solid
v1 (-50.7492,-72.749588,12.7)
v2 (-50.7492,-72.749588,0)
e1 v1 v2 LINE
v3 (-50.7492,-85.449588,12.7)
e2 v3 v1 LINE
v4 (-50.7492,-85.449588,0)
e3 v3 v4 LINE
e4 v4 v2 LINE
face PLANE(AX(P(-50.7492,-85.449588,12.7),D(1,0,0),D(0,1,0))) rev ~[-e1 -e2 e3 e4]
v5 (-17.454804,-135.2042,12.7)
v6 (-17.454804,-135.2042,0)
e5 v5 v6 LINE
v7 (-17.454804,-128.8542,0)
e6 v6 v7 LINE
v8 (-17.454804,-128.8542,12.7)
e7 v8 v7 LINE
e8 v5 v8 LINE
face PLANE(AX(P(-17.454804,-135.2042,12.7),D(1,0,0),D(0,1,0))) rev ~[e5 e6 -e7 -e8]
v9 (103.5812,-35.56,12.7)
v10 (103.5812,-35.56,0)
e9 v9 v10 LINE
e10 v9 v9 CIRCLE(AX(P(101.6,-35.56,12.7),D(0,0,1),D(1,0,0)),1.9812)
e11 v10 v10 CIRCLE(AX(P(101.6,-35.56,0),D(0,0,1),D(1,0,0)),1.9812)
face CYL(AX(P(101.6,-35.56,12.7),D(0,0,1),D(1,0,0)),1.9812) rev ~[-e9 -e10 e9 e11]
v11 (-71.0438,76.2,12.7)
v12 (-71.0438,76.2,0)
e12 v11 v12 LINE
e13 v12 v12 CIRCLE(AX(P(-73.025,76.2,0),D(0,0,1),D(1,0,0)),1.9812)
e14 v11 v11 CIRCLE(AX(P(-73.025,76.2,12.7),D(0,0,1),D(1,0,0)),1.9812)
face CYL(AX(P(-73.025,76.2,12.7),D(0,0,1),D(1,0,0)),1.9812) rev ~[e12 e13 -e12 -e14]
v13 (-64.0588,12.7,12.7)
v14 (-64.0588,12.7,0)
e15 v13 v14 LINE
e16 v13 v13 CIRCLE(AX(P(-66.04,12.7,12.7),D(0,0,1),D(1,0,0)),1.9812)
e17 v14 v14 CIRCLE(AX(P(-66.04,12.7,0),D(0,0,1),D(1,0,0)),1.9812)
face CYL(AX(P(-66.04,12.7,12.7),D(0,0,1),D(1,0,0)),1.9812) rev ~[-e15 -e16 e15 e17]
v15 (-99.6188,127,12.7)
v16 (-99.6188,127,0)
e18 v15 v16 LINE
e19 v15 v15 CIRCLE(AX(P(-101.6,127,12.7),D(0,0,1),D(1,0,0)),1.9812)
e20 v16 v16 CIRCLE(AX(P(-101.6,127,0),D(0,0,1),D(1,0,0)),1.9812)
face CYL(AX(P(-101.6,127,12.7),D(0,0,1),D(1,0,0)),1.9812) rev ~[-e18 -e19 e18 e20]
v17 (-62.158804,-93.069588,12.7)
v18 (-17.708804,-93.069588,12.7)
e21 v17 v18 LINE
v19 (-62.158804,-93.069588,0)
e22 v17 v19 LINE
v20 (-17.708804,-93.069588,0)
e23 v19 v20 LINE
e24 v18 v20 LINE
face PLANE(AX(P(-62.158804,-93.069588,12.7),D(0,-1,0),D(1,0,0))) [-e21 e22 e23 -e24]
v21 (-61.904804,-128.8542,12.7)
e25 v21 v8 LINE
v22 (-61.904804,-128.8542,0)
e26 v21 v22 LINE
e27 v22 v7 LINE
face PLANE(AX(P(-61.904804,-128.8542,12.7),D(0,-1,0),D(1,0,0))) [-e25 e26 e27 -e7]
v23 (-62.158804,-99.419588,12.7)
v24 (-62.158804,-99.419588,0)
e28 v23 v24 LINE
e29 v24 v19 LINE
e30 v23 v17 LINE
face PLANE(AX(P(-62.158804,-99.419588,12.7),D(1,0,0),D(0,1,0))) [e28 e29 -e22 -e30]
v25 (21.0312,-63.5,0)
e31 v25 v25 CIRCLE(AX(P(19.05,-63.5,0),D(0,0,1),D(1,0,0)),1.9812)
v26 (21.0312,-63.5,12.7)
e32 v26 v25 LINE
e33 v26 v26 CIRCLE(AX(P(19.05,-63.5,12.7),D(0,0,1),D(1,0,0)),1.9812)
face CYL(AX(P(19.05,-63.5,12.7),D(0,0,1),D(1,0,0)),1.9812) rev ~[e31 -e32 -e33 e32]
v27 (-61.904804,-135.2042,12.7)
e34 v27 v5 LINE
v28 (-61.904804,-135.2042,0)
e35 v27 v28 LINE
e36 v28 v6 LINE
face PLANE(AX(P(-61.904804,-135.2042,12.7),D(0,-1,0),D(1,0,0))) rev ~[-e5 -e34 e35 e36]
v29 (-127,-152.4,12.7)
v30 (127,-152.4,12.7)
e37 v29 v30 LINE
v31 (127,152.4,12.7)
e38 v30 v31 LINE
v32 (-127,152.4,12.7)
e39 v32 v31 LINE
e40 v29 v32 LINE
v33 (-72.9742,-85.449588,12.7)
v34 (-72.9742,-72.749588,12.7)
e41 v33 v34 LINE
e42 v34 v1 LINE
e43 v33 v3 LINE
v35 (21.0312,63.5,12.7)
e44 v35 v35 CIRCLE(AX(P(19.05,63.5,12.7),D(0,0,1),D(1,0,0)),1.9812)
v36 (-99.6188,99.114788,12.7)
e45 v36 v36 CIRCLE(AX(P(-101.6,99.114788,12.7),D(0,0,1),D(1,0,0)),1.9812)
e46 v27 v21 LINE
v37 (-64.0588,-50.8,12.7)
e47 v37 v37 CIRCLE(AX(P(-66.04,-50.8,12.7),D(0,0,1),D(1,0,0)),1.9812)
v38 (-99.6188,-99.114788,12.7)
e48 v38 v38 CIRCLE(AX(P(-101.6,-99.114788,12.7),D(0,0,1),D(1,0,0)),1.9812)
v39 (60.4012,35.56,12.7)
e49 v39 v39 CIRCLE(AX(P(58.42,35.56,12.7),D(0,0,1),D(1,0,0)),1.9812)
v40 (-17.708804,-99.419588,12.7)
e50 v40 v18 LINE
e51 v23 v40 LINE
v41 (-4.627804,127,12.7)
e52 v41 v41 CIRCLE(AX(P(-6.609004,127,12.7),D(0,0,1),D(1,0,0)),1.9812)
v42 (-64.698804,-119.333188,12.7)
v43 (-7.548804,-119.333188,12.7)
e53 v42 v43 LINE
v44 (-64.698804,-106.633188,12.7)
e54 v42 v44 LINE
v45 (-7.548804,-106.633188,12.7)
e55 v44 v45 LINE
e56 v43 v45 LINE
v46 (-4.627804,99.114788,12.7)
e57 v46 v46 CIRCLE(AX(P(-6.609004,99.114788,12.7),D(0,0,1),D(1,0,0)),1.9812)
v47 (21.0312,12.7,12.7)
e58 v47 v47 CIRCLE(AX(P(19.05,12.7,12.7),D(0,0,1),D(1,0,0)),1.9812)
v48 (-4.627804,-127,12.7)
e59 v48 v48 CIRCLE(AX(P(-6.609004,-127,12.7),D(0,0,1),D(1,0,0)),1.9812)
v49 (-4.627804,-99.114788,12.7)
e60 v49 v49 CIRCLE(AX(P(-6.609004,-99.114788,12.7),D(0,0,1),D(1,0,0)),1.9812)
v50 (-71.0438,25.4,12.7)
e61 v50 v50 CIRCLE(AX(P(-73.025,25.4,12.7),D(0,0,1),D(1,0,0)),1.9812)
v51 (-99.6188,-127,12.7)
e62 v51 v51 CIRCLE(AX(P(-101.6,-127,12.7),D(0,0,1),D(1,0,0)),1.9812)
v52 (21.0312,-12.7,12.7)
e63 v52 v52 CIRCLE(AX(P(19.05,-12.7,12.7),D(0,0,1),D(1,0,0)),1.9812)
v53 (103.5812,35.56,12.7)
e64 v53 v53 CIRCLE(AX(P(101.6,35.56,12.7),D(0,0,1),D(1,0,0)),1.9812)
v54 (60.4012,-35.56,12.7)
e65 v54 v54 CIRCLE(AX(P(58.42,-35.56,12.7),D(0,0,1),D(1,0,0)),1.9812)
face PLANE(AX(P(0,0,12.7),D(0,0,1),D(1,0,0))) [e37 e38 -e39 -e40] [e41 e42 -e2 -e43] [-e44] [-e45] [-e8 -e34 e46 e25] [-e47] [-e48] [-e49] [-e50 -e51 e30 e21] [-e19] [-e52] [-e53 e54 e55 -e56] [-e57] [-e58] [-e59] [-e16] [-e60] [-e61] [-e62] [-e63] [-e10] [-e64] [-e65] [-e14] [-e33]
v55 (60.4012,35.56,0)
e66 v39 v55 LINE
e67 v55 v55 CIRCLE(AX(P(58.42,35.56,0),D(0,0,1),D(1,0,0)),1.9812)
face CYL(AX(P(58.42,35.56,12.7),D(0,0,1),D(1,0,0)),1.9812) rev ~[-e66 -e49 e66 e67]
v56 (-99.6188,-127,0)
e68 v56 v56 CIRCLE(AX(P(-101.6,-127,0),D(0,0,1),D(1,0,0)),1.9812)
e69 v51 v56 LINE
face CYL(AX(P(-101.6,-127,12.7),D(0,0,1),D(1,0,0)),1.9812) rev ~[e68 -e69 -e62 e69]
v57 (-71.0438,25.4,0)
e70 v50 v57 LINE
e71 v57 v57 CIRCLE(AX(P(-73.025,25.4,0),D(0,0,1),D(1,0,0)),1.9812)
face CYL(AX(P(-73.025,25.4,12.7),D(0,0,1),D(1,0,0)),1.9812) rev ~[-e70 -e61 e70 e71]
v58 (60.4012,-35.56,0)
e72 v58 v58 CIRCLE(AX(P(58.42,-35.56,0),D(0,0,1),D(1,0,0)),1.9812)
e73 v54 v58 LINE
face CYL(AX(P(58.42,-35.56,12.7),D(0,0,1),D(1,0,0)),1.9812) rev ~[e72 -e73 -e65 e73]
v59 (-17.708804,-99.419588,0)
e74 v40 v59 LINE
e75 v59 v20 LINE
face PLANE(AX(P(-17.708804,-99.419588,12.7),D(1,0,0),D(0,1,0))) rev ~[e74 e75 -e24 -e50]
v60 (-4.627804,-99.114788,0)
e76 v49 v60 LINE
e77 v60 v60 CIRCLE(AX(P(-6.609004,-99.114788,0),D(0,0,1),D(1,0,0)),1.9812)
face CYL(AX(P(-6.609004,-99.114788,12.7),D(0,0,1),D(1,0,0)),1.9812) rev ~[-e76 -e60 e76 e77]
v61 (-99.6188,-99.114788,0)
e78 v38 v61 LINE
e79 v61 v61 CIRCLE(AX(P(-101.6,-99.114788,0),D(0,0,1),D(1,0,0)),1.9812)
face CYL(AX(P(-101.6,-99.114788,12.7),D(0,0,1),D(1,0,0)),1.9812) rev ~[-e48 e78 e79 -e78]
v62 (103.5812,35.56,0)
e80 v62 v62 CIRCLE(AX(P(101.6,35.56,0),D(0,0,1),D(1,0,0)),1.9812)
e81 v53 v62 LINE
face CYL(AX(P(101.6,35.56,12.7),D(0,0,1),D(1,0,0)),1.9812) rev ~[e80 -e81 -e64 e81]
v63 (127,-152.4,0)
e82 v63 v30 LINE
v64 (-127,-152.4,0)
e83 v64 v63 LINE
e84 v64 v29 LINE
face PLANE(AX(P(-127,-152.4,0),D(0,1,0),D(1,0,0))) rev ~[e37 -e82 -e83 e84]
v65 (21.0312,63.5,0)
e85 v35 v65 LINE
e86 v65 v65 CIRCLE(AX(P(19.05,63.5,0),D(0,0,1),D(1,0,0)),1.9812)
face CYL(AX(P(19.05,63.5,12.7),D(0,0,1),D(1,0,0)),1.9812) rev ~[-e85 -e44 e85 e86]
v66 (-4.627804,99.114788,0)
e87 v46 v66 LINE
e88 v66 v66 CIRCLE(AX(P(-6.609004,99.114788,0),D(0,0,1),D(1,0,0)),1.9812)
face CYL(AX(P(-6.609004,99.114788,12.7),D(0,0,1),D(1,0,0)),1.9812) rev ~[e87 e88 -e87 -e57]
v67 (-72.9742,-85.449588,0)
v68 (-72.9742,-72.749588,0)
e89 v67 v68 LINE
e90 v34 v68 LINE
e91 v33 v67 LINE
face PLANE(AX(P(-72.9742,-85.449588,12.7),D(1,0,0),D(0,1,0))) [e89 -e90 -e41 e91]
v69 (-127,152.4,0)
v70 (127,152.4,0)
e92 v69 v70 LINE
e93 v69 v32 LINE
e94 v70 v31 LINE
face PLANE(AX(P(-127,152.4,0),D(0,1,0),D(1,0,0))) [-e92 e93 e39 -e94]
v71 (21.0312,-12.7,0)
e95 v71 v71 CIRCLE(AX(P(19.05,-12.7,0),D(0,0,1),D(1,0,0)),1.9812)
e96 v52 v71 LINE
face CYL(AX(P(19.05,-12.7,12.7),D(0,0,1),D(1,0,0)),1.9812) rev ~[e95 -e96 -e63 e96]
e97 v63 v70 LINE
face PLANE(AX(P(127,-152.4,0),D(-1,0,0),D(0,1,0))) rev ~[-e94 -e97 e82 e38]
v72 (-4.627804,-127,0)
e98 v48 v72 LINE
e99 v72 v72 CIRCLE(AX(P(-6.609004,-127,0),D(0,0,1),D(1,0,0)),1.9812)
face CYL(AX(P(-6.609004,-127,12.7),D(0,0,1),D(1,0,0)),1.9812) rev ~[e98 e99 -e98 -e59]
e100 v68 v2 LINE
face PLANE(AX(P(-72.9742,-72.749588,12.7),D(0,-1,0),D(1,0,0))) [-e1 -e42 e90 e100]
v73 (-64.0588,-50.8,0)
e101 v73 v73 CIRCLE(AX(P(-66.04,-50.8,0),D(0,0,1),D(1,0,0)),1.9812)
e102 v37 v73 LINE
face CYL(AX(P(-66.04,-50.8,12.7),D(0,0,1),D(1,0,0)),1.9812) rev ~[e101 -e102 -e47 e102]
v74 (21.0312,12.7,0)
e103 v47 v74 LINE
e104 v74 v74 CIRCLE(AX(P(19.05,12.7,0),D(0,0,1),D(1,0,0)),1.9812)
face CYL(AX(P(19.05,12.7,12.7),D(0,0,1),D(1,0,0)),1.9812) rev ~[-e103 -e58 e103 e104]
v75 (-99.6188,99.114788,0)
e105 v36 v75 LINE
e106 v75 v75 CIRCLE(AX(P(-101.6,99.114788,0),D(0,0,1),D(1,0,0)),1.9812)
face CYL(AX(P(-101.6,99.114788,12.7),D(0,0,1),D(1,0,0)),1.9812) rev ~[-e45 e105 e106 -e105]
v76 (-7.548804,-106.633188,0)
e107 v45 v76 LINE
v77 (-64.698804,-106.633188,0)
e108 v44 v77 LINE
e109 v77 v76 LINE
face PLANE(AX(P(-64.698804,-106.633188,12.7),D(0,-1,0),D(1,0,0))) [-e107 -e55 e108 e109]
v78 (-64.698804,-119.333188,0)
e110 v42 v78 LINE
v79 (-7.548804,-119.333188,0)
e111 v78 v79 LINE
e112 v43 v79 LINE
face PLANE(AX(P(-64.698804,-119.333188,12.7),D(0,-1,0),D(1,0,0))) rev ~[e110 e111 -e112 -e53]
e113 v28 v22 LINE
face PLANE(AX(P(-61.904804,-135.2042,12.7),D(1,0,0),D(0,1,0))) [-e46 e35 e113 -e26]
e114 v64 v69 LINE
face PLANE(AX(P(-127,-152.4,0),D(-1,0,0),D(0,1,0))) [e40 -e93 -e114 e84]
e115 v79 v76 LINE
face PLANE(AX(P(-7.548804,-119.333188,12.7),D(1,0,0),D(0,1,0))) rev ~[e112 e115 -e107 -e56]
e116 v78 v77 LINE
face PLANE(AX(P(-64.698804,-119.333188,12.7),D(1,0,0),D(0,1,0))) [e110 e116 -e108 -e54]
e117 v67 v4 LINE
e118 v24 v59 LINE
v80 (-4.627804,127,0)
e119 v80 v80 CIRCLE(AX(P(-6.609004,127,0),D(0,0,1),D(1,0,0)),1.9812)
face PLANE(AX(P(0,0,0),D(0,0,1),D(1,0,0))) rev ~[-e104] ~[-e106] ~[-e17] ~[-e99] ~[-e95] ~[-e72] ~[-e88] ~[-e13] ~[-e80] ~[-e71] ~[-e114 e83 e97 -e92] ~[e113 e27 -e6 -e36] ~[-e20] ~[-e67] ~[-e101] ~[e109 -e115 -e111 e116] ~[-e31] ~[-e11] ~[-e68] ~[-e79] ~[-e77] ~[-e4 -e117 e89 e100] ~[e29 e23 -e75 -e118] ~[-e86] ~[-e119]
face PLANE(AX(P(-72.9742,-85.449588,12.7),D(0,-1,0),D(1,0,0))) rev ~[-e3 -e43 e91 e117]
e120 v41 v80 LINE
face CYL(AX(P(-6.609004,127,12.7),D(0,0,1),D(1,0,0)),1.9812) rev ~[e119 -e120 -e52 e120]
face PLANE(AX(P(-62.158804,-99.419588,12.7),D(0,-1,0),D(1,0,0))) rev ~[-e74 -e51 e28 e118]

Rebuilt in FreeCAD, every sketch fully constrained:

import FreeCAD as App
import Part
import Sketcher

V = App.Vector
Q = App.Units.Quantity

doc = App.newDocument("Part")
body = doc.addObject("PartDesign::Body", "Body")

sketch1 = doc.addObject("Sketcher::SketchObject", "Sketch")
body.addObject(sketch1)
sketch1.AttachmentSupport = (doc.XY_Plane, [""])
sketch1.MapMode = "FlatFace"
sketch1.addGeometry([
    Part.LineSegment(V(-127, 152.4, 0), V(-127, -152.4, 0)),
    Part.LineSegment(V(-127, -152.4, 0), V(127, -152.4, 0)),
    Part.LineSegment(V(127, -152.4, 0), V(127, 152.4, 0)),
    Part.LineSegment(V(127, 152.4, 0), V(-127, 152.4, 0)),
], False)
sketch1.addConstraint([
    Sketcher.Constraint("Coincident", 0, 2, 1, 1),
    Sketcher.Constraint("Coincident", 1, 2, 2, 1),
    Sketcher.Constraint("Coincident", 2, 2, 3, 1),
    Sketcher.Constraint("Coincident", 3, 2, 0, 1),
    Sketcher.Constraint("Vertical", 0),
    Sketcher.Constraint("Horizontal", 1),
    Sketcher.Constraint("Vertical", 2),
    Sketcher.Constraint("Horizontal", 3),
    Sketcher.Constraint("Symmetric", 0, 2, 2, 2, -1, 1),
    Sketcher.Constraint("DistanceX", 1, 1, 1, 2, Q("10 in")),
    Sketcher.Constraint("DistanceY", 0, 2, 0, 1, Q("12 in")),
])
pad1 = doc.addObject("PartDesign::Pad", "Pad")
body.addObject(pad1)
pad1.Profile = sketch1
pad1.Length = Q("0.5 in")

sketch2 = doc.addObject("Sketcher::SketchObject", "Sketch001")
body.addObject(sketch2)
sketch2.AttachmentSupport = (doc.XY_Plane, [""])
sketch2.MapMode = "FlatFace"
sketch2.AttachmentOffset = App.Placement(V(0, 0, 0.5 * 25.4), App.Rotation())
sketch2.addGeometry([
    Part.Circle(V(-101.6, 127, 0), V(0, 0, 1), 1.9812),
    Part.Circle(V(-101.6, 99.114788, 0), V(0, 0, 1), 1.9812),
    Part.Circle(V(-6.609004, 127, 0), V(0, 0, 1), 1.9812),
    Part.Circle(V(-6.609004, 99.114788, 0), V(0, 0, 1), 1.9812),
    Part.Circle(V(-101.6, -99.114788, 0), V(0, 0, 1), 1.9812),
    Part.Circle(V(-6.609004, -99.114788, 0), V(0, 0, 1), 1.9812),
    Part.Circle(V(-6.609004, -127, 0), V(0, 0, 1), 1.9812),
    Part.Circle(V(-101.6, -127, 0), V(0, 0, 1), 1.9812),
    Part.Circle(V(-73.025, 76.2, 0), V(0, 0, 1), 1.9812),
    Part.Circle(V(-73.025, 25.4, 0), V(0, 0, 1), 1.9812),
    Part.Circle(V(-66.04, 12.7, 0), V(0, 0, 1), 1.9812),
    Part.Circle(V(-66.04, -50.8, 0), V(0, 0, 1), 1.9812),
    Part.Circle(V(19.05, -12.7, 0), V(0, 0, 1), 1.9812),
    Part.Circle(V(19.05, -63.5, 0), V(0, 0, 1), 1.9812),
    Part.Circle(V(19.05, 63.5, 0), V(0, 0, 1), 1.9812),
    Part.Circle(V(19.05, 12.7, 0), V(0, 0, 1), 1.9812),
    Part.Circle(V(58.42, 35.56, 0), V(0, 0, 1), 1.9812),
    Part.Circle(V(101.6, 35.56, 0), V(0, 0, 1), 1.9812),
    Part.Circle(V(58.42, -35.56, 0), V(0, 0, 1), 1.9812),
    Part.Circle(V(101.6, -35.56, 0), V(0, 0, 1), 1.9812),
    Part.LineSegment(V(-64.698804, -106.633188, 0), V(-64.698804, -119.333188, 0)),
    Part.LineSegment(V(-64.698804, -119.333188, 0), V(-7.548804, -119.333188, 0)),
    Part.LineSegment(V(-7.548804, -119.333188, 0), V(-7.548804, -106.633188, 0)),
    Part.LineSegment(V(-7.548804, -106.633188, 0), V(-64.698804, -106.633188, 0)),
    Part.LineSegment(V(-61.904804, -128.8542, 0), V(-61.904804, -135.2042, 0)),
    Part.LineSegment(V(-61.904804, -135.2042, 0), V(-17.454804, -135.2042, 0)),
    Part.LineSegment(V(-17.454804, -135.2042, 0), V(-17.454804, -128.8542, 0)),
    Part.LineSegment(V(-17.454804, -128.8542, 0), V(-61.904804, -128.8542, 0)),
    Part.LineSegment(V(-72.9742, -72.749588, 0), V(-72.9742, -85.449588, 0)),
    Part.LineSegment(V(-72.9742, -85.449588, 0), V(-50.7492, -85.449588, 0)),
    Part.LineSegment(V(-50.7492, -85.449588, 0), V(-50.7492, -72.749588, 0)),
    Part.LineSegment(V(-50.7492, -72.749588, 0), V(-72.9742, -72.749588, 0)),
    Part.LineSegment(V(-62.158804, -93.069588, 0), V(-62.158804, -99.419588, 0)),
    Part.LineSegment(V(-62.158804, -99.419588, 0), V(-17.708804, -99.419588, 0)),
    Part.LineSegment(V(-17.708804, -99.419588, 0), V(-17.708804, -93.069588, 0)),
    Part.LineSegment(V(-17.708804, -93.069588, 0), V(-62.158804, -93.069588, 0)),
], False)
sketch2.addConstraint([
    Sketcher.Constraint("Coincident", 20, 2, 21, 1),
    Sketcher.Constraint("Coincident", 21, 2, 22, 1),
    Sketcher.Constraint("Coincident", 22, 2, 23, 1),
    Sketcher.Constraint("Coincident", 23, 2, 20, 1),
    Sketcher.Constraint("Coincident", 24, 2, 25, 1),
    Sketcher.Constraint("Coincident", 25, 2, 26, 1),
    Sketcher.Constraint("Coincident", 26, 2, 27, 1),
    Sketcher.Constraint("Coincident", 27, 2, 24, 1),
    Sketcher.Constraint("Coincident", 28, 2, 29, 1),
    Sketcher.Constraint("Coincident", 29, 2, 30, 1),
    Sketcher.Constraint("Coincident", 30, 2, 31, 1),
    Sketcher.Constraint("Coincident", 31, 2, 28, 1),
    Sketcher.Constraint("Coincident", 32, 2, 33, 1),
    Sketcher.Constraint("Coincident", 33, 2, 34, 1),
    Sketcher.Constraint("Coincident", 34, 2, 35, 1),
    Sketcher.Constraint("Coincident", 35, 2, 32, 1),
    Sketcher.Constraint("Vertical", 20),
    Sketcher.Constraint("Horizontal", 21),
    Sketcher.Constraint("Vertical", 22),
    Sketcher.Constraint("Horizontal", 23),
    Sketcher.Constraint("Vertical", 24),
    Sketcher.Constraint("Horizontal", 25),
    Sketcher.Constraint("Vertical", 26),
    Sketcher.Constraint("Horizontal", 27),
    Sketcher.Constraint("Vertical", 28),
    Sketcher.Constraint("Horizontal", 29),
    Sketcher.Constraint("Vertical", 30),
    Sketcher.Constraint("Horizontal", 31),
    Sketcher.Constraint("Vertical", 32),
    Sketcher.Constraint("Horizontal", 33),
    Sketcher.Constraint("Vertical", 34),
    Sketcher.Constraint("Horizontal", 35),
    Sketcher.Constraint("Equal", 0, 1),
    Sketcher.Constraint("Equal", 1, 2),
    Sketcher.Constraint("Equal", 2, 3),
    Sketcher.Constraint("Equal", 3, 4),
    Sketcher.Constraint("Equal", 4, 5),
    Sketcher.Constraint("Equal", 5, 6),
    Sketcher.Constraint("Equal", 6, 7),
    Sketcher.Constraint("Equal", 7, 8),
    Sketcher.Constraint("Equal", 8, 9),
    Sketcher.Constraint("Equal", 9, 10),
    Sketcher.Constraint("Equal", 10, 11),
    Sketcher.Constraint("Equal", 11, 12),
    Sketcher.Constraint("Equal", 12, 13),
    Sketcher.Constraint("Equal", 13, 14),
    Sketcher.Constraint("Equal", 14, 15),
    Sketcher.Constraint("Equal", 15, 16),
    Sketcher.Constraint("Equal", 16, 17),
    Sketcher.Constraint("Equal", 17, 18),
    Sketcher.Constraint("Equal", 18, 19),
    Sketcher.Constraint("Symmetric", 1, 3, 4, 3, -1),
    Sketcher.Constraint("Symmetric", 3, 3, 5, 3, -1),
    Sketcher.Constraint("Symmetric", 2, 3, 6, 3, -1),
    Sketcher.Constraint("Symmetric", 0, 3, 7, 3, -1),
    Sketcher.Constraint("Symmetric", 13, 3, 14, 3, -1),
    Sketcher.Constraint("Symmetric", 12, 3, 15, 3, -1),
    Sketcher.Constraint("Symmetric", 16, 3, 18, 3, -1),
    Sketcher.Constraint("Symmetric", 17, 3, 19, 3, -1),
    Sketcher.Constraint("Horizontal", 0, 3, 2, 3),
    Sketcher.Constraint("Horizontal", 1, 3, 3, 3),
    Sketcher.Constraint("Horizontal", 10, 3, 15, 3),
    Sketcher.Constraint("Horizontal", 16, 3, 17, 3),
    Sketcher.Constraint("Vertical", 0, 3, 1, 3),
    Sketcher.Constraint("Vertical", 2, 3, 3, 3),
    Sketcher.Constraint("Vertical", 8, 3, 9, 3),
    Sketcher.Constraint("Vertical", 10, 3, 11, 3),
    Sketcher.Constraint("Vertical", 12, 3, 13, 3),
    Sketcher.Constraint("Equal", 27, 33),
    Sketcher.Constraint("Equal", 22, 28),
    Sketcher.Constraint("Equal", 26, 32),
    Sketcher.Constraint("Diameter", 0, Q("0.156 in")),
    Sketcher.Constraint("DistanceY", 20, 2, 20, 1, Q("0.5 in")),
    Sketcher.Constraint("DistanceX", 0, 3, -1, 1, Q("4 in")),
    Sketcher.Constraint("DistanceY", -1, 1, 0, 3, Q("5 in")),
    Sketcher.Constraint("DistanceY", -1, 1, 8, 3, Q("3 in")),
    Sketcher.Constraint("DistanceY", -1, 1, 9, 3, Q("1 in")),
    Sketcher.Constraint("DistanceY", 11, 3, -1, 1, Q("2 in")),
    Sketcher.Constraint("DistanceX", -1, 1, 17, 3, Q("4 in")),
    Sketcher.Constraint("DistanceY", 12, 3, 10, 3, Q("1 in")),
    Sketcher.Constraint("DistanceY", 13, 3, 12, 3, Q("2 in")),
    Sketcher.Constraint("DistanceX", 21, 1, 21, 2, Q("2.25 in")),
    Sketcher.Constraint("DistanceX", 25, 1, 25, 2, Q("1.75 in")),
    Sketcher.Constraint("DistanceY", 24, 2, 24, 1, Q("0.25 in")),
    Sketcher.Constraint("DistanceX", 10, 3, -1, 1, Q("2.6 in")),
    Sketcher.Constraint("DistanceX", -1, 1, 16, 3, Q("2.3 in")),
    Sketcher.Constraint("DistanceY", -1, 1, 16, 3, Q("1.4 in")),
    Sketcher.Constraint("DistanceX", 23, 2, 32, 2, Q("0.1 in")),
    Sketcher.Constraint("DistanceY", 34, 2, 29, 2, Q("0.3 in")),
    Sketcher.Constraint("DistanceX", 29, 1, 29, 2, Q("0.875 in")),
    Sketcher.Constraint("DistanceX", -1, 1, 12, 3, Q("0.75 in")),
    Sketcher.Constraint("DistanceX", 20, 2, 24, 2, Q("0.11 in")),
    Sketcher.Constraint("DistanceX", 8, 3, -1, 1, Q("2.875 in")),
    Sketcher.Constraint("DistanceY", 24, 2, -1, 1, Q("5.323 in")),
    Sketcher.Constraint("DistanceX", 28, 2, -1, 1, Q("2.873 in")),
    Sketcher.Constraint("DistanceY", 20, 2, 4, 3, Q("0.796 in")),
    Sketcher.Constraint("DistanceX", 20, 2, 6, 3, Q("2.287 in")),
    Sketcher.Constraint("DistanceY", 23, 2, 28, 2, Q("0.834 in")),
    Sketcher.Constraint("DistanceY", -1, 1, 1, 3, 99.114788),
    Sketcher.Constraint("DistanceX", 2, 3, -1, 1, 6.609004),
])
pocket1 = doc.addObject("PartDesign::Pocket", "Pocket")
body.addObject(pocket1)
pocket1.Profile = sketch2
pocket1.Length = Q("1 in")

doc.recompute()
